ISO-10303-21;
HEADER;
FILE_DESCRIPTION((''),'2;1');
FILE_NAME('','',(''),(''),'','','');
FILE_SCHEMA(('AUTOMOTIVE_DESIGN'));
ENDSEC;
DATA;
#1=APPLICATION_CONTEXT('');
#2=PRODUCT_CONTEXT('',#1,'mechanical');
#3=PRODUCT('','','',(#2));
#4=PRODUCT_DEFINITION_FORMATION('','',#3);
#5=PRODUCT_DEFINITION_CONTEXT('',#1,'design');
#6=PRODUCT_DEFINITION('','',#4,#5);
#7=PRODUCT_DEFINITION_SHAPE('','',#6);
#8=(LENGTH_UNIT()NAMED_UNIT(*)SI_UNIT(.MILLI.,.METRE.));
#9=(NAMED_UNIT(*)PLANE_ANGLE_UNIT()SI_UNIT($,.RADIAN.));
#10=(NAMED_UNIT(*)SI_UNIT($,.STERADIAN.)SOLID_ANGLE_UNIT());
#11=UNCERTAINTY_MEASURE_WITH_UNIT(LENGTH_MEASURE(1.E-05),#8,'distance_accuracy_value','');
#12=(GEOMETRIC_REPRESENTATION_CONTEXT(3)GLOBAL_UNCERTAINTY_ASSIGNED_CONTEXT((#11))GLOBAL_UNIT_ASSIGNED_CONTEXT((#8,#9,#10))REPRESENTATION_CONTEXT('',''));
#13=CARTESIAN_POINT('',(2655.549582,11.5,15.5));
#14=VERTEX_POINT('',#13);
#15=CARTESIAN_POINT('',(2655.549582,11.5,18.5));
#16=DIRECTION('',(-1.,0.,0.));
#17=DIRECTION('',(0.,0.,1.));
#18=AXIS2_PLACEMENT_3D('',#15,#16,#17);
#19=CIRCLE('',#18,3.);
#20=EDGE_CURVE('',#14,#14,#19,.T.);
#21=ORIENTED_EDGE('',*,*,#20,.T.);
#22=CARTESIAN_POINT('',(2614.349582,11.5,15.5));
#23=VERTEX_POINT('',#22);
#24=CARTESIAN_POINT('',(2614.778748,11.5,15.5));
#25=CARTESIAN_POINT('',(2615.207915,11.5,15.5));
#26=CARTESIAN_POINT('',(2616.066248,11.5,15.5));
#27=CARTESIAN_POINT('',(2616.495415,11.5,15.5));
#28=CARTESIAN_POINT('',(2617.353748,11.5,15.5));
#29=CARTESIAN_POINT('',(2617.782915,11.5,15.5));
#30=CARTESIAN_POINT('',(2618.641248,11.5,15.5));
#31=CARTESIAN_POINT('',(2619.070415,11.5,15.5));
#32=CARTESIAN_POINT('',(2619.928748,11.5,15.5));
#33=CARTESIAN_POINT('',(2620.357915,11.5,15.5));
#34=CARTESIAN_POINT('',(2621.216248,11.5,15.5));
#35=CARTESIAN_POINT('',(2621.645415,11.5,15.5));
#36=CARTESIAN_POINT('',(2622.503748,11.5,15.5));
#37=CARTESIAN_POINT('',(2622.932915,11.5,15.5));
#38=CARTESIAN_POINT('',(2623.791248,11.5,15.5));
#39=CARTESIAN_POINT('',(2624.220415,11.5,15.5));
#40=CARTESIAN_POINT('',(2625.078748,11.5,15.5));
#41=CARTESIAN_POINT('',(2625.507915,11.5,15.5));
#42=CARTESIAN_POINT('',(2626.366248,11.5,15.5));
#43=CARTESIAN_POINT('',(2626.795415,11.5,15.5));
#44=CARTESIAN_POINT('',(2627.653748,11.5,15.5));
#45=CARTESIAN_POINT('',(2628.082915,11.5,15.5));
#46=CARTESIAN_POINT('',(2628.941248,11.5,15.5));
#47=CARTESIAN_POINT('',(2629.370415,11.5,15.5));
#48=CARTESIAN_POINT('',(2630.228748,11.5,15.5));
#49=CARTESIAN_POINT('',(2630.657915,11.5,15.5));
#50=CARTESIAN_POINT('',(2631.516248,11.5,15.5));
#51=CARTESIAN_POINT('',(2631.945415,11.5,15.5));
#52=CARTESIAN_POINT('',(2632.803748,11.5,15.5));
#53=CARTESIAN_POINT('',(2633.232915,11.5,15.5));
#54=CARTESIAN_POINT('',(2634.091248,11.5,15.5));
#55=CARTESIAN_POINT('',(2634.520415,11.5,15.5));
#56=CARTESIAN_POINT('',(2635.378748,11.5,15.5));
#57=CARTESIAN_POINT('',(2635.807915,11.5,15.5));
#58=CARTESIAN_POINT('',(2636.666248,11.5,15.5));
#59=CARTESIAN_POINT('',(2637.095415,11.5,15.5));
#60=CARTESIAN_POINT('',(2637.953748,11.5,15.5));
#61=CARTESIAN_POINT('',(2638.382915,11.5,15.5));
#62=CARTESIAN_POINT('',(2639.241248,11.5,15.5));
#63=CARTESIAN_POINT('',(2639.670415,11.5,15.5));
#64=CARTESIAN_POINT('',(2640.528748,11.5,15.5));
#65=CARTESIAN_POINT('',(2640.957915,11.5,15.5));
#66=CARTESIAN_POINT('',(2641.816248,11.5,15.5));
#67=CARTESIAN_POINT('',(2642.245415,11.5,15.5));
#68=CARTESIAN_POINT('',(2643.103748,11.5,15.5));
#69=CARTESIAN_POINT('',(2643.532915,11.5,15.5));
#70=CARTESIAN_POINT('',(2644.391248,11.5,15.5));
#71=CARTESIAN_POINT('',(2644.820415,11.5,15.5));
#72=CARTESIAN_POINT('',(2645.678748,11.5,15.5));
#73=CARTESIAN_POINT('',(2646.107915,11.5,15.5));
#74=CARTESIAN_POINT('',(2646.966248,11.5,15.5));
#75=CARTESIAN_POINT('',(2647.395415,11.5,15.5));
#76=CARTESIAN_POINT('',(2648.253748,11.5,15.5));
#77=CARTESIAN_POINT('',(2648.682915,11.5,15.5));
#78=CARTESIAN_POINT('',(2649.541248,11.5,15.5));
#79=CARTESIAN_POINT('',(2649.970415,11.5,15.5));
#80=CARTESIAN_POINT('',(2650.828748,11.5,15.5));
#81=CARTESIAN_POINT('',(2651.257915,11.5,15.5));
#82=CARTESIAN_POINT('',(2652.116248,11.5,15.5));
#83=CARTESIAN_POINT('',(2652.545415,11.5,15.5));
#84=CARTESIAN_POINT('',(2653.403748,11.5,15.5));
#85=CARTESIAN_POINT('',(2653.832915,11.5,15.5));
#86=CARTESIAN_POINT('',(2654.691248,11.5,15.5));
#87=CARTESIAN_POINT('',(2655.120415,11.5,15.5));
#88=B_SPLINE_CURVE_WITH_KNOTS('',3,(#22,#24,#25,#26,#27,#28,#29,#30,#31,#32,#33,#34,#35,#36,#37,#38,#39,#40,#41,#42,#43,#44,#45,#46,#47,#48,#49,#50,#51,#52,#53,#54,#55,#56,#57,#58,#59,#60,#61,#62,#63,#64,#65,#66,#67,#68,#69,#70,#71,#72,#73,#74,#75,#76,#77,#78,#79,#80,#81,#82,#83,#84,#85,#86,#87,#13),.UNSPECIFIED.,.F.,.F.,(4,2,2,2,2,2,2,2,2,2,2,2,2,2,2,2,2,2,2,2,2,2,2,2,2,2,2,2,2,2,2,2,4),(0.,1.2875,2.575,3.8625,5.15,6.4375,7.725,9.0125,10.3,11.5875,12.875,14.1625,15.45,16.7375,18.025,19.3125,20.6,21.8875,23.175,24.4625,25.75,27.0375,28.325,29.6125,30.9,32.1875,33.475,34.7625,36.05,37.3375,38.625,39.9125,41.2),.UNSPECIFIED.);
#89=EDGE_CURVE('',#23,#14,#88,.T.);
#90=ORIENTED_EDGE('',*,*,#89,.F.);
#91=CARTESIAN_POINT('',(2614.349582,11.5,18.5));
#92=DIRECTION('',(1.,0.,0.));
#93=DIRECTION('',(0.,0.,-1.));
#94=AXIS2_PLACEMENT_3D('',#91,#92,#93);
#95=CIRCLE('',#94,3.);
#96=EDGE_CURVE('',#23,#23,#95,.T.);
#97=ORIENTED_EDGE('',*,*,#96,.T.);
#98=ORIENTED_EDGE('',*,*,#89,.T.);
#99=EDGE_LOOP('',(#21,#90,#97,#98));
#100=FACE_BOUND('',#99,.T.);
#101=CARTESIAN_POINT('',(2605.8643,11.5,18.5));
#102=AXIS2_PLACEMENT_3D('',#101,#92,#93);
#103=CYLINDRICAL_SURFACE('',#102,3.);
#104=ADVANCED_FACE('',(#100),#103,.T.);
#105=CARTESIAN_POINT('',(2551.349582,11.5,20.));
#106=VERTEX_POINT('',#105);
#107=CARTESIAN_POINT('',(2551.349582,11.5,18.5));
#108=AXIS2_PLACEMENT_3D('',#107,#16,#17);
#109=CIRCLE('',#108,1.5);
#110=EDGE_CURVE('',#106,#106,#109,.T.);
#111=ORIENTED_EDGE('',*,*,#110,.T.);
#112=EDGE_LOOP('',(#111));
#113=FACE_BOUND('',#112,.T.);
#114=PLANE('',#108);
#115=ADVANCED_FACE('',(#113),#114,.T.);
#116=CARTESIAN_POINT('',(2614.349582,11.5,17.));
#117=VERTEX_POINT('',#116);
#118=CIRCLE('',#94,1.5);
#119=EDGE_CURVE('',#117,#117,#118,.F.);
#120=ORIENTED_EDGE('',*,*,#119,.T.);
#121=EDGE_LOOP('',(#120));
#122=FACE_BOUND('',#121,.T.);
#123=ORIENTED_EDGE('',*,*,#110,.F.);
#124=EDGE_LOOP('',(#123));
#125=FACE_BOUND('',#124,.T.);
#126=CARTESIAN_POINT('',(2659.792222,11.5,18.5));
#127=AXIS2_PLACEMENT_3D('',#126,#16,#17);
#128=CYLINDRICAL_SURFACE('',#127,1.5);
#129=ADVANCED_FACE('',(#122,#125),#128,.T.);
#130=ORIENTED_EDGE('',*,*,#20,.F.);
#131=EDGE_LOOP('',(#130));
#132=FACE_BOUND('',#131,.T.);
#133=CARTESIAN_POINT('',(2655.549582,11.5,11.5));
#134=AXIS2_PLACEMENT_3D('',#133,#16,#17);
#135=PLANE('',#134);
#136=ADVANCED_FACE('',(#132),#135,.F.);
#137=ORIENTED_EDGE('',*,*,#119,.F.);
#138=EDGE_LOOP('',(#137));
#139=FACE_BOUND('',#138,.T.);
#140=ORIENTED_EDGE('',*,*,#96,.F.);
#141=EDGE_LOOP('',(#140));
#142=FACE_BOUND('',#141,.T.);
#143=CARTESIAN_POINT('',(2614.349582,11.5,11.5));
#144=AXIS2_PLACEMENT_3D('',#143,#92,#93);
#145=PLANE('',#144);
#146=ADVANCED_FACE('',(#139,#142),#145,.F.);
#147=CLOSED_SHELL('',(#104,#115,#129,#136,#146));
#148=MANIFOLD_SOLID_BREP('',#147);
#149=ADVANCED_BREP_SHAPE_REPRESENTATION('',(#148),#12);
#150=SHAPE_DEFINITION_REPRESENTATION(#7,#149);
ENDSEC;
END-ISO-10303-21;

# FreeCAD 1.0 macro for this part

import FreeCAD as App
import Part
import Sketcher
Q = App.Units.Quantity

doc = App.newDocument("Part")
params = doc.addObject("Spreadsheet::Sheet", "Params")
for row, (alias, value) in enumerate([
    ("sketch1_diameter", "3 mm"),
    ("pad1_length", "104.2 mm"),
    ("sketch2_diameter", "6 mm"),
    ("pad2_length", "41.2 mm"),
], start=1):
    params.set(f"A{row}", alias)
    params.set(f"B{row}", "=" + value)
    params.setAlias(f"B{row}", alias)

body = doc.addObject("PartDesign::Body", "Body")

sketch1 = body.newObject("Sketcher::SketchObject", "Sketch")
sketch1.AttachmentSupport = (doc.getObject("YZ_Plane"), [""])
sketch1.MapMode = "FlatFace"
sketch1.AttachmentOffset = App.Placement(App.Vector(0, 0, 2551.349582), App.Rotation())
sketch1.addGeometry(Part.Circle(App.Vector(11.5, 18.5, 0), App.Vector(0, 0, 1), 1.5), False)
sketch1.addConstraint([
    Sketcher.Constraint("Diameter", 0, Q("3 mm")),
    Sketcher.Constraint("DistanceX", -1, 1, 0, 3, Q("11.5 mm")),
    Sketcher.Constraint("DistanceY", -1, 1, 0, 3, Q("18.5 mm")),
])
sketch1.setExpression("Constraints[0]", "Params.sketch1_diameter")
pad1 = body.newObject("PartDesign::Pad", "Pad")
pad1.Profile = sketch1
pad1.setExpression("Length", "Params.pad1_length")

sketch2 = body.newObject("Sketcher::SketchObject", "Sketch001")
sketch2.AttachmentSupport = (doc.getObject("YZ_Plane"), [""])
sketch2.MapMode = "FlatFace"
sketch2.AttachmentOffset = App.Placement(App.Vector(0, 0, 2655.549582), App.Rotation())
sketch2.addGeometry(Part.Circle(App.Vector(11.5, 18.5, 0), App.Vector(0, 0, 1), 3), False)
sketch2.addConstraint([
    Sketcher.Constraint("Diameter", 0, Q("6 mm")),
    Sketcher.Constraint("DistanceX", -1, 1, 0, 3, Q("11.5 mm")),
    Sketcher.Constraint("DistanceY", -1, 1, 0, 3, Q("18.5 mm")),
])
sketch2.setExpression("Constraints[0]", "Params.sketch2_diameter")
pad2 = body.newObject("PartDesign::Pad", "Pad001")
pad2.Profile = sketch2
pad2.setExpression("Length", "Params.pad2_length")
pad2.Reversed = True

doc.recompute()
